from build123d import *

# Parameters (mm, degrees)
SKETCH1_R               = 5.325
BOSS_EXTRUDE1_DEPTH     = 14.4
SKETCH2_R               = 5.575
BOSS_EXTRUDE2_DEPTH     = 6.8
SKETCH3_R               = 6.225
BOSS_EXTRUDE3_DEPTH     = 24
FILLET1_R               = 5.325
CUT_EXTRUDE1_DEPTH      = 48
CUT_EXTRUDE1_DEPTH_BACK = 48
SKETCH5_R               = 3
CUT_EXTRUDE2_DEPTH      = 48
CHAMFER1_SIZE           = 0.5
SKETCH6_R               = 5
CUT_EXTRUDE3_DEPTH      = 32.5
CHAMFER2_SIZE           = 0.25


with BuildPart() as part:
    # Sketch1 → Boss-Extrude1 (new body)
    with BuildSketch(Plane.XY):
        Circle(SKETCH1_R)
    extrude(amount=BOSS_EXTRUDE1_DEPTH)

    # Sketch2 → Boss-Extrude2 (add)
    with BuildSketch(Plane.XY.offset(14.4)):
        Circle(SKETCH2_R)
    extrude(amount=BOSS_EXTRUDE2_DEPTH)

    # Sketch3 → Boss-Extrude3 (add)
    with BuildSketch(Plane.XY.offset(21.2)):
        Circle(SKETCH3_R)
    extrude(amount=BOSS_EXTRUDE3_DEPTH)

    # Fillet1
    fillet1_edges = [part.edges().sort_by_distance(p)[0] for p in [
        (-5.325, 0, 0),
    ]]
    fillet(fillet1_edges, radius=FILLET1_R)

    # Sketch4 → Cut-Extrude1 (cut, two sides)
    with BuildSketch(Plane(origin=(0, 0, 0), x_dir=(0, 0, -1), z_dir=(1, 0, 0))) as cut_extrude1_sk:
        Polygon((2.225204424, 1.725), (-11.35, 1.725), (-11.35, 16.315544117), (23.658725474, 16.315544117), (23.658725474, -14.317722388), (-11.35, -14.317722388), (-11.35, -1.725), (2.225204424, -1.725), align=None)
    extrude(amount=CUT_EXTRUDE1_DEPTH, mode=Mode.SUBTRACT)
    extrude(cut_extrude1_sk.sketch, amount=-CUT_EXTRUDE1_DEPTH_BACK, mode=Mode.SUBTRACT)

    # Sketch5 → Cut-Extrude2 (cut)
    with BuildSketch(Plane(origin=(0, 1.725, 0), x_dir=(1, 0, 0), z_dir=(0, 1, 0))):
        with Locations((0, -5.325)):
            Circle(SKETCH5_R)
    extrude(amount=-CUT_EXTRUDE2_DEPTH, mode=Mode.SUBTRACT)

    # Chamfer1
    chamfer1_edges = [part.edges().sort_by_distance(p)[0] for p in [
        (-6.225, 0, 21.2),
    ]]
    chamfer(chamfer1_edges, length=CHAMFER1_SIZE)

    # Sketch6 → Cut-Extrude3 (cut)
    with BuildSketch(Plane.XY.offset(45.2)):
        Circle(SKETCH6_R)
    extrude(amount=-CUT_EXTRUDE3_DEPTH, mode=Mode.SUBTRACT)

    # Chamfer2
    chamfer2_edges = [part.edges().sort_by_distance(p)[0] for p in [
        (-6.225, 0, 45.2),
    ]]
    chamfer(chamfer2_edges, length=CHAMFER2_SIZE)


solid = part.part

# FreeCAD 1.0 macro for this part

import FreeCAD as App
import Part
import Sketcher

V = App.Vector
Q = App.Units.Quantity


def edges_at(feature, points):
    """Names of the edges that pass closest to the given points."""
    edges = feature.Shape.Edges
    near = lambda p: min(range(len(edges)), key=lambda i: edges[i].distToShape(Part.Vertex(*p))[0])
    return sorted({f"Edge{near(p) + 1}" for p in points})


def add_polygon(sketch, points):
    """Adds a closed chain of lines whose ends are joined by coincident constraints."""
    first, n = sketch.GeometryCount, len(points)
    for a, b in zip(points, points[1:] + points[:1]):
        sketch.addGeometry(Part.LineSegment(App.Vector(*a, 0), App.Vector(*b, 0)), False)
    for i in range(n):
        sketch.addConstraint(Sketcher.Constraint("Coincident", first + i, 2, first + (i + 1) % n, 1))

doc = App.newDocument("Part")
params = doc.addObject("Spreadsheet::Sheet", "Params")
for row, (alias, value) in enumerate([
    ("sketch1_diameter", "10.65 mm"),
    ("pad1_length", "14.4 mm"),
    ("sketch2_diameter", "11.15 mm"),
    ("pad2_length", "6.8 mm"),
    ("sketch3_diameter", "12.45 mm"),
    ("pad3_length", "24 mm"),
    ("fillet_radius", "5.325 mm"),
    ("sketch4_width", "3.45 mm"),
    ("sketch5_diameter", "6 mm"),
    ("pocket2_length", "48 mm"),
    ("chamfer_size", "0.5 mm"),
    ("sketch6_diameter", "10 mm"),
    ("pocket3_length", "32.5 mm"),
    ("chamfer2_size", "0.25 mm"),
], start=1):
    params.set(f"A{row}", alias)
    params.set(f"B{row}", "=" + value)
    params.setAlias(f"B{row}", alias)

body = doc.addObject("PartDesign::Body", "Body")

sketch1 = doc.addObject("Sketcher::SketchObject", "Sketch")
body.addObject(sketch1)
sketch1.AttachmentSupport = (doc.XY_Plane, [""])
sketch1.MapMode = "FlatFace"
sketch1.addGeometry(Part.Circle(V(0, 0, 0), V(0, 0, 1), 5.325), False)
sketch1.addConstraint([
    Sketcher.Constraint("Coincident", 0, 3, -1, 1),
    Sketcher.Constraint("Diameter", 0, Q("10.65 mm")),
])
sketch1.setExpression("Constraints[1]", "Params.sketch1_diameter")
pad1 = doc.addObject("PartDesign::Pad", "Pad")
body.addObject(pad1)
pad1.Profile = sketch1
pad1.setExpression("Length", "Params.pad1_length")

sketch2 = doc.addObject("Sketcher::SketchObject", "Sketch001")
body.addObject(sketch2)
sketch2.AttachmentSupport = (doc.XY_Plane, [""])
sketch2.MapMode = "FlatFace"
sketch2.AttachmentOffset = App.Placement(V(0, 0, 14.4), App.Rotation())
sketch2.addGeometry(Part.Circle(V(0, 0, 0), V(0, 0, 1), 5.575), False)
sketch2.addConstraint([
    Sketcher.Constraint("Coincident", 0, 3, -1, 1),
    Sketcher.Constraint("Diameter", 0, Q("11.15 mm")),
])
sketch2.setExpression("Constraints[1]", "Params.sketch2_diameter")
pad2 = doc.addObject("PartDesign::Pad", "Pad001")
body.addObject(pad2)
pad2.Profile = sketch2
pad2.setExpression("Length", "Params.pad2_length")

sketch3 = doc.addObject("Sketcher::SketchObject", "Sketch002")
body.addObject(sketch3)
sketch3.AttachmentSupport = (doc.XY_Plane, [""])
sketch3.MapMode = "FlatFace"
sketch3.AttachmentOffset = App.Placement(V(0, 0, 21.2), App.Rotation())
sketch3.addGeometry(Part.Circle(V(0, 0, 0), V(0, 0, 1), 6.225), False)
sketch3.addConstraint([
    Sketcher.Constraint("Coincident", 0, 3, -1, 1),
    Sketcher.Constraint("Diameter", 0, Q("12.45 mm")),
])
sketch3.setExpression("Constraints[1]", "Params.sketch3_diameter")
pad3 = doc.addObject("PartDesign::Pad", "Pad002")
body.addObject(pad3)
pad3.Profile = sketch3
pad3.setExpression("Length", "Params.pad3_length")
doc.recompute()

fillet = doc.addObject("PartDesign::Fillet", "Fillet")
body.addObject(fillet)
fillet.Base = (pad3, edges_at(pad3, [(-5.325, 0, 0)]))
fillet.setExpression("Radius", "Params.fillet_radius")

sketch4 = doc.addObject("Sketcher::SketchObject", "Sketch003")
body.addObject(sketch4)
sketch4.AttachmentSupport = (doc.YZ_Plane, [""])
sketch4.MapMode = "FlatFace"
add_polygon(sketch4, [(1.725, 11.35), (1.725, -2.225204), (-1.725, -2.225204), (-1.725, 11.35), (-14.317722, 11.35), (-14.317722, -23.658725), (16.315544, -23.658725), (16.315544, 11.35)])
sketch4.addConstraint([
    Sketcher.Constraint("Vertical", 0),
    Sketcher.Constraint("Horizontal", 1),
    Sketcher.Constraint("Vertical", 2),
    Sketcher.Constraint("Horizontal", 3),
    Sketcher.Constraint("Vertical", 4),
    Sketcher.Constraint("Horizontal", 5),
    Sketcher.Constraint("Vertical", 6),
    Sketcher.Constraint("Horizontal", 7),
    Sketcher.Constraint("Symmetric", 2, 2, 7, 2, -2),
    Sketcher.Constraint("DistanceX", 1, 2, 1, 1, Q("3.45 mm")),
    Sketcher.Constraint("DistanceY", -1, 1, 2, 2, Q("11.35 mm")),
    Sketcher.Constraint("DistanceX", 3, 2, 3, 1, Q("12.592722 mm")),
    Sketcher.Constraint("DistanceX", 5, 1, 5, 2, Q("30.633267 mm")),
    Sketcher.Constraint("DistanceY", 0, 2, 0, 1, Q("13.575204 mm")),
    Sketcher.Constraint("DistanceY", 4, 2, 4, 1, Q("35.008725 mm")),
])
sketch4.setExpression("Constraints[17]", "Params.sketch4_width")
pocket1 = doc.addObject("PartDesign::Pocket", "Pocket")
body.addObject(pocket1)
pocket1.Profile = sketch4
pocket1.Type = "ThroughAll"
pocket1.Midplane = True

sketch5 = doc.addObject("Sketcher::SketchObject", "Sketch004")
body.addObject(sketch5)
sketch5.AttachmentSupport = (doc.XZ_Plane, [""])
sketch5.MapMode = "FlatFace"
sketch5.AttachmentOffset = App.Placement(V(0, 0, -1.725), App.Rotation())
sketch5.addGeometry(Part.Circle(V(0, 5.325, 0), V(0, 0, 1), 3), False)
sketch5.addConstraint([
    Sketcher.Constraint("PointOnObject", 0, 3, -2),
    Sketcher.Constraint("Diameter", 0, Q("6 mm")),
    Sketcher.Constraint("DistanceY", -1, 1, 0, 3, Q("5.325 mm")),
])
sketch5.setExpression("Constraints[1]", "Params.sketch5_diameter")
pocket2 = doc.addObject("PartDesign::Pocket", "Pocket001")
body.addObject(pocket2)
pocket2.Profile = sketch5
pocket2.setExpression("Length", "Params.pocket2_length")
pocket2.Reversed = True
doc.recompute()

chamfer = doc.addObject("PartDesign::Chamfer", "Chamfer")
body.addObject(chamfer)
chamfer.Base = (pocket2, edges_at(pocket2, [(-6.225, 0, 21.2)]))
chamfer.setExpression("Size", "Params.chamfer_size")

sketch6 = doc.addObject("Sketcher::SketchObject", "Sketch005")
body.addObject(sketch6)
sketch6.AttachmentSupport = (doc.XY_Plane, [""])
sketch6.MapMode = "FlatFace"
sketch6.AttachmentOffset = App.Placement(V(0, 0, 45.2), App.Rotation())
sketch6.addGeometry(Part.Circle(V(0, 0, 0), V(0, 0, 1), 5), False)
sketch6.addConstraint([
    Sketcher.Constraint("Coincident", 0, 3, -1, 1),
    Sketcher.Constraint("Diameter", 0, Q("10 mm")),
])
sketch6.setExpression("Constraints[1]", "Params.sketch6_diameter")
pocket3 = doc.addObject("PartDesign::Pocket", "Pocket002")
body.addObject(pocket3)
pocket3.Profile = sketch6
pocket3.setExpression("Length", "Params.pocket3_length")
doc.recompute()

chamfer2 = doc.addObject("PartDesign::Chamfer", "Chamfer001")
body.addObject(chamfer2)
chamfer2.Base = (pocket3, edges_at(pocket3, [(-6.225, 0, 45.2)]))
chamfer2.setExpression("Size", "Params.chamfer2_size")

doc.recompute()
